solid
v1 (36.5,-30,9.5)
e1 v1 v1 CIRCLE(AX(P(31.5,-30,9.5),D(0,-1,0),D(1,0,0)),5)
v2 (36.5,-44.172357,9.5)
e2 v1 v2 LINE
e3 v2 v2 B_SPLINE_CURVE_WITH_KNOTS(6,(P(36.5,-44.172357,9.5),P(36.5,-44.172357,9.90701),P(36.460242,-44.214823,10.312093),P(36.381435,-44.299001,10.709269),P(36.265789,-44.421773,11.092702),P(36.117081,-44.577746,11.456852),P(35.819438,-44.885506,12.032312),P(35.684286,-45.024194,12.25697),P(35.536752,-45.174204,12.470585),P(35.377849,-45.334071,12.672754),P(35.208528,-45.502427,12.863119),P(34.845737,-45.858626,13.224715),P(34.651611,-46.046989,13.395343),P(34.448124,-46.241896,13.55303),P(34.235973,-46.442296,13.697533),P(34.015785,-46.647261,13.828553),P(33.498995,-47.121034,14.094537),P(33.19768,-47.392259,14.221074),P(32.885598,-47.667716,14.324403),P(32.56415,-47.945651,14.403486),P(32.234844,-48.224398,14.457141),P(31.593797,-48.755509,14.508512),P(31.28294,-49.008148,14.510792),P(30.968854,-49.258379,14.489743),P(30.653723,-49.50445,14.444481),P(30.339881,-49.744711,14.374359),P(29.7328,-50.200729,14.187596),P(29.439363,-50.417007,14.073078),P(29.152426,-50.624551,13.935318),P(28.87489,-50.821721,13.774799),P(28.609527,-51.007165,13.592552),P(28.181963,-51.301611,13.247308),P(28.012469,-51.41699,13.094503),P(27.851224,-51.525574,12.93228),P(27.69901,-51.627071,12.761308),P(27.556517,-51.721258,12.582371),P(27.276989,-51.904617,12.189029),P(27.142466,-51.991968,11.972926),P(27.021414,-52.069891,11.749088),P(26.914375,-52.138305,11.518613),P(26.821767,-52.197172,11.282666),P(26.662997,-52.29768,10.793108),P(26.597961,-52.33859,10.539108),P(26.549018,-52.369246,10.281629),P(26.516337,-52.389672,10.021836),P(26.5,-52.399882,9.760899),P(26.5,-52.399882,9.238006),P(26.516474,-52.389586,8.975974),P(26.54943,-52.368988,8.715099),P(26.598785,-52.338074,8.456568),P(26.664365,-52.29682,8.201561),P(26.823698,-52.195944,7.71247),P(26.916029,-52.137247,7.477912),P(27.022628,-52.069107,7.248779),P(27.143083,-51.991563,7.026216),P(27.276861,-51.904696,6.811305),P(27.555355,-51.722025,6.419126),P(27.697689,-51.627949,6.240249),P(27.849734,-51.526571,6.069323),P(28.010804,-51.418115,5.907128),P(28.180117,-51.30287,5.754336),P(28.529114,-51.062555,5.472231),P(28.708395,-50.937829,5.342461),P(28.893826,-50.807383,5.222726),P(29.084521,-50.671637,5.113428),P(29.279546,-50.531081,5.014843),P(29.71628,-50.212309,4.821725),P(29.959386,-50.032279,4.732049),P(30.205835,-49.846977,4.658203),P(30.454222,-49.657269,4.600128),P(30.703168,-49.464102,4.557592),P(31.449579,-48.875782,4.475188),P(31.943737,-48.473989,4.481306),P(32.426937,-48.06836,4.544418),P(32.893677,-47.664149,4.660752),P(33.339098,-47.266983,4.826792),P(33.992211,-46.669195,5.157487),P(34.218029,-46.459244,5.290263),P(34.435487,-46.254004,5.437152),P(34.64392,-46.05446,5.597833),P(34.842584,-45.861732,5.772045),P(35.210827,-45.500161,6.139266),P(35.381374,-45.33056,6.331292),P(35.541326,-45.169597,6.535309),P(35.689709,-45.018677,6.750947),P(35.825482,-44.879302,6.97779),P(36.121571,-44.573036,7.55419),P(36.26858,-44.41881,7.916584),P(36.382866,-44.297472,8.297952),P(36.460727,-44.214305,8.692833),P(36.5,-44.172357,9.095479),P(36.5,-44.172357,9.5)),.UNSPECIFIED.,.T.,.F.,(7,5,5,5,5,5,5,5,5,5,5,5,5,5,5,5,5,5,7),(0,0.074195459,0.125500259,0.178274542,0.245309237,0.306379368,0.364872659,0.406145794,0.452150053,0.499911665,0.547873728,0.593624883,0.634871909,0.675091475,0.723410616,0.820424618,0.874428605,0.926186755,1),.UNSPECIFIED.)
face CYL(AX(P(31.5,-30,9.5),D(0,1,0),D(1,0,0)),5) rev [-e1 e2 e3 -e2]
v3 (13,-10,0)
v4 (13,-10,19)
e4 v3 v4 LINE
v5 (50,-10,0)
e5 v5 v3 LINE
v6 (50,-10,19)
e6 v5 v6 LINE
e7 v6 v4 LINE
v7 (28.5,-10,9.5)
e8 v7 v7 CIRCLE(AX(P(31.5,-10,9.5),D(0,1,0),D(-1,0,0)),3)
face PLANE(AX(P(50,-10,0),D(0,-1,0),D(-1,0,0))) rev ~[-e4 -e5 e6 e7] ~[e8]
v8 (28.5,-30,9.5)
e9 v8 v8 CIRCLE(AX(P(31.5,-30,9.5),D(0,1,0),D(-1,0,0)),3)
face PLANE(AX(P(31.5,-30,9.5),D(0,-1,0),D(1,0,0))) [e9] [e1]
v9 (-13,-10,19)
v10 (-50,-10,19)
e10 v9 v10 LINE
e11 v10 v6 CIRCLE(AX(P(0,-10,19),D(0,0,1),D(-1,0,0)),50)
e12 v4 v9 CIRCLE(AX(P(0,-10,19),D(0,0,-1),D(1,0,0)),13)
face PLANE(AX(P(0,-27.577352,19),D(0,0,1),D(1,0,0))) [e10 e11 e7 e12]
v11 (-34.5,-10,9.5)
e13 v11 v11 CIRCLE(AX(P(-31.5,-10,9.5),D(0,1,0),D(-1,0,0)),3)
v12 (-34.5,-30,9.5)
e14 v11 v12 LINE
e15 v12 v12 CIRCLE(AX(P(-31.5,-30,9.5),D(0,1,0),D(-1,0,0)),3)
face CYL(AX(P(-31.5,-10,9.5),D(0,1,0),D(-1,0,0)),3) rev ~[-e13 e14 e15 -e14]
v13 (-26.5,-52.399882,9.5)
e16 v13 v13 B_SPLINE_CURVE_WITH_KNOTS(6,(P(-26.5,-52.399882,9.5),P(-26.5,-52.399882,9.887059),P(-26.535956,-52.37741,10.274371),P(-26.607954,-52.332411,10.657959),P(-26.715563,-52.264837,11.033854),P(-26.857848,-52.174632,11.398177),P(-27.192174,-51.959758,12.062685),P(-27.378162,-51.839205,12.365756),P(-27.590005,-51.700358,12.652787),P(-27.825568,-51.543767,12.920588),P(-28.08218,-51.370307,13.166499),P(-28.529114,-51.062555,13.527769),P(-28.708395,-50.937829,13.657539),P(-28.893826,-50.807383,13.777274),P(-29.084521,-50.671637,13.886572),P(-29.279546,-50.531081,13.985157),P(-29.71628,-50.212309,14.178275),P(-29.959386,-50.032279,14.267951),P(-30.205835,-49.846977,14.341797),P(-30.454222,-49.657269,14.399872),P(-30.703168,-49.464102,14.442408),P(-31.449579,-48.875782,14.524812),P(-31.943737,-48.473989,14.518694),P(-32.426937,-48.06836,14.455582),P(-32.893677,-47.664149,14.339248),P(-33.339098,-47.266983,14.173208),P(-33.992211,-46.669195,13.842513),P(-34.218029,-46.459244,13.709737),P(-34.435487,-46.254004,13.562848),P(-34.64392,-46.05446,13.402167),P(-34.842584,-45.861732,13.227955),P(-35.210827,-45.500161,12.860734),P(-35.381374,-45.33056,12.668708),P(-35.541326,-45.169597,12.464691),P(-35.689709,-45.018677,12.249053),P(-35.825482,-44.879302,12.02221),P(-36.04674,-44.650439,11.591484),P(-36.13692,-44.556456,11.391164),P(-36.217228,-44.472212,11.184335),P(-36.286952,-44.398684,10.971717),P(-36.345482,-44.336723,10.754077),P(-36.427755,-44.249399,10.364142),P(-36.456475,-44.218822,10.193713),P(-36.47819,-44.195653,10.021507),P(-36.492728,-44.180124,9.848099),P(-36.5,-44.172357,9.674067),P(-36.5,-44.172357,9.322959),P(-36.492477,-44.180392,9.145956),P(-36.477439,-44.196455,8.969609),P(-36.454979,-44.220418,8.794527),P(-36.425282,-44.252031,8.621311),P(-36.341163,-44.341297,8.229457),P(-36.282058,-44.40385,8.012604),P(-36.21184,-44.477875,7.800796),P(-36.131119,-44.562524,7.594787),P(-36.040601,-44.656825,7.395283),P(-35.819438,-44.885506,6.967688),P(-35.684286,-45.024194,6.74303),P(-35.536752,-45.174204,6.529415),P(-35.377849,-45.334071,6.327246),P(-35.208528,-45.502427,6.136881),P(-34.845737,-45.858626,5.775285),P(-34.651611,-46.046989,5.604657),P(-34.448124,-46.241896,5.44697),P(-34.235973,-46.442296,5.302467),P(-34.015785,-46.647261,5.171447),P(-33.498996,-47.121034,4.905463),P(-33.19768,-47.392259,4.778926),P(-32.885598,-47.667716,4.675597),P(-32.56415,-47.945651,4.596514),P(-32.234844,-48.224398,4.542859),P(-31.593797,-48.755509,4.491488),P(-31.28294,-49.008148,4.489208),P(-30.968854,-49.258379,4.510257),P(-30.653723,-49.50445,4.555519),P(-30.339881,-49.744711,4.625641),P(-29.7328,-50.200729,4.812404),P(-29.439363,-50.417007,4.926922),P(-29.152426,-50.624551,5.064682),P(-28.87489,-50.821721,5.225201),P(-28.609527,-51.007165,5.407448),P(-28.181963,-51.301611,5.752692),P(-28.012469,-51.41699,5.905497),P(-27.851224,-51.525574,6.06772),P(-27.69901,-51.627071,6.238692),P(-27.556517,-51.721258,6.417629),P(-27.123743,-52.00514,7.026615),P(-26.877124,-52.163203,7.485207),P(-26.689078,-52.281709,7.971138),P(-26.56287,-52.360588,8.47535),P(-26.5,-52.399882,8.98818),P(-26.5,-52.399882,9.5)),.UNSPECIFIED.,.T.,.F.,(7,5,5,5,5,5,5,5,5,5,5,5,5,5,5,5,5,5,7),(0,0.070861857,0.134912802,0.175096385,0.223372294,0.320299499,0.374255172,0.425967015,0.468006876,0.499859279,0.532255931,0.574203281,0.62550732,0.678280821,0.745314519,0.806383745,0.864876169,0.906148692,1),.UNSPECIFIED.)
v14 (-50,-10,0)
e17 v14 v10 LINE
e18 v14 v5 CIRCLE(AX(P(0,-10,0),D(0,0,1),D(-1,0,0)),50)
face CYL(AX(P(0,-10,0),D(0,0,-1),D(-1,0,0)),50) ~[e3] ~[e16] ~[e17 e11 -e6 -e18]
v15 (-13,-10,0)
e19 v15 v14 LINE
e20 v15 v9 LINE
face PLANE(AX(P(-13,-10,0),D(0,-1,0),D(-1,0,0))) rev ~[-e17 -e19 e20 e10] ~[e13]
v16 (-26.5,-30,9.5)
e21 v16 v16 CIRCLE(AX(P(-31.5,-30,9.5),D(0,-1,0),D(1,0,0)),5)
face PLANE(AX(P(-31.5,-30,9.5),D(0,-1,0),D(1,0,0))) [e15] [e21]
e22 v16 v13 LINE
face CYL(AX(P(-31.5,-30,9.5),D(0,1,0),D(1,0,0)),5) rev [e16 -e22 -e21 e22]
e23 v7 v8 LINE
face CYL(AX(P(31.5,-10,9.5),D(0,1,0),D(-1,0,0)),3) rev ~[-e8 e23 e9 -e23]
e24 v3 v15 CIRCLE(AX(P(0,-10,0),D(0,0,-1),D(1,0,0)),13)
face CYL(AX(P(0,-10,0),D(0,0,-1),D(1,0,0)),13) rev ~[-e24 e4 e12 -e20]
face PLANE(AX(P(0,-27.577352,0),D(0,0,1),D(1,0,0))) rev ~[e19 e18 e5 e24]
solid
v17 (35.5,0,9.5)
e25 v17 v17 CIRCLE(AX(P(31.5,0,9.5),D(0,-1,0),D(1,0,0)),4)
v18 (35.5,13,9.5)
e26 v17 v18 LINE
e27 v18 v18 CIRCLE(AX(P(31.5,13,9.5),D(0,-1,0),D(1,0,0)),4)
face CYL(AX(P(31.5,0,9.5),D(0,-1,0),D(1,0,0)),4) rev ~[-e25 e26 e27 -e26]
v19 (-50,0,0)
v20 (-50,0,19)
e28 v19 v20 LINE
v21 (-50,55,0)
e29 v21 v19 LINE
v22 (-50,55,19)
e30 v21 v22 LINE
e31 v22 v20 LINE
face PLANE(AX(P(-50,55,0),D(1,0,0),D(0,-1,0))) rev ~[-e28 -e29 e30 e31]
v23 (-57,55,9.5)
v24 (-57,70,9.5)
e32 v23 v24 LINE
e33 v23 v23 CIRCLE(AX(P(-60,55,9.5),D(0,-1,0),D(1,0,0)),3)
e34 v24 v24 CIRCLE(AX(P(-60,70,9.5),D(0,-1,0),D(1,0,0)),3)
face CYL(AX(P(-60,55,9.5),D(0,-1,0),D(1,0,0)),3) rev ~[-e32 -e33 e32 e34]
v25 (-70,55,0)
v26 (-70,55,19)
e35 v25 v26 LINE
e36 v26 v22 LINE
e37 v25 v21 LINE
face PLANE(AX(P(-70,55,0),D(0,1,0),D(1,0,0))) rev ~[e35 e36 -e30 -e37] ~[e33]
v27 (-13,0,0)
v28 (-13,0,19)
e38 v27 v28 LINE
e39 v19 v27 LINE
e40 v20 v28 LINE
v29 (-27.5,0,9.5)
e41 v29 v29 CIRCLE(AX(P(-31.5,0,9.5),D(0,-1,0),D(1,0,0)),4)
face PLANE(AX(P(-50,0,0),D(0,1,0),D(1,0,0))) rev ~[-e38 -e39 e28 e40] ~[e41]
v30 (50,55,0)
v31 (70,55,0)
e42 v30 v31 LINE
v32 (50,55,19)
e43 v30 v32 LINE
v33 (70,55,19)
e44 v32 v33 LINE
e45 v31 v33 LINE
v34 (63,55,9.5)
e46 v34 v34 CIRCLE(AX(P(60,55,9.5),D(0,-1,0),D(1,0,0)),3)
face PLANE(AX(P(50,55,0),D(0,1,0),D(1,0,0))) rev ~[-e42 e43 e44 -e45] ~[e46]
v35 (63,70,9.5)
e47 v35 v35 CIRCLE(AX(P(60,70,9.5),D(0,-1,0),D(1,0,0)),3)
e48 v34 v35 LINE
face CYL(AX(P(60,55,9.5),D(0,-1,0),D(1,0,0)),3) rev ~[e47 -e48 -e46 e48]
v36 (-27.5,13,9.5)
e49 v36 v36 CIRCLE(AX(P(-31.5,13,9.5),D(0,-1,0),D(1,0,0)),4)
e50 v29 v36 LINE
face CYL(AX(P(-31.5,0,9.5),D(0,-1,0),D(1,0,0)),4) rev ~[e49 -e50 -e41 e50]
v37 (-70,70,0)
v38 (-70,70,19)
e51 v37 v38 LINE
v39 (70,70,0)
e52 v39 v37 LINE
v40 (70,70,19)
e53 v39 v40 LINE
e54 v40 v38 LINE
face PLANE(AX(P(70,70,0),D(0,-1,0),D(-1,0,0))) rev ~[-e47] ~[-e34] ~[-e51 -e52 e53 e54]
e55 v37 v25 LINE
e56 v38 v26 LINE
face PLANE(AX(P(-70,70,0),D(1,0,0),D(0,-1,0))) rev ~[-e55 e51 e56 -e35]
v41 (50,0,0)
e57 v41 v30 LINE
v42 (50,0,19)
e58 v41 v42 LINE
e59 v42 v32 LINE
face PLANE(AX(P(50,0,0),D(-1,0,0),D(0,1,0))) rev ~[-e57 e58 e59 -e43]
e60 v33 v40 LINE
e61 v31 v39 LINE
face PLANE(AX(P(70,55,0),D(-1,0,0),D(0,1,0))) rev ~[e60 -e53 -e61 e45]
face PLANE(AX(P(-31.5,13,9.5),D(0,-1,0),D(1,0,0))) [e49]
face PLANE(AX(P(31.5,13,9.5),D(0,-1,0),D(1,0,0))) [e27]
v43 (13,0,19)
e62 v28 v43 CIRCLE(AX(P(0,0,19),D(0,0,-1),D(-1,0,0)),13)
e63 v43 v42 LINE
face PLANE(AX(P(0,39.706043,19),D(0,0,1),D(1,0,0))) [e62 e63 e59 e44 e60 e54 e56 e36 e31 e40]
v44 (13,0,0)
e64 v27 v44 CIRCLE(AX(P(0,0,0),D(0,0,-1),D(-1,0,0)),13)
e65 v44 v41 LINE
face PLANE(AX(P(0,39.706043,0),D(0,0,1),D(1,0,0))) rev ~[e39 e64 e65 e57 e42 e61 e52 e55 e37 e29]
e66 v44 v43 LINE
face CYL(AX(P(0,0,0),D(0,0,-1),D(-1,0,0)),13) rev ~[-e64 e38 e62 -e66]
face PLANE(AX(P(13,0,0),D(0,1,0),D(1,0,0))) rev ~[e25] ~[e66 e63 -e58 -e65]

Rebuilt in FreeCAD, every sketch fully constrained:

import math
import FreeCAD as App
import Part
import Sketcher

V = App.Vector
Q = App.Units.Quantity

doc = App.newDocument("Part")
body = doc.addObject("PartDesign::Body", "Body")
body.AllowCompound = True

# Sketch on XY plane
sketch1 = body.newObject("Sketcher::SketchObject", "Sketch")
sketch1.AttachmentSupport = (doc.getObject("XY_Plane"), [""])
sketch1.MapMode = "FlatFace"
sketch1.addGeometry([
    Part.ArcOfCircle(Part.Circle(V(0, 0, 0), V(0, 0, 1), 13), math.radians(0), math.radians(180)),  # 0
    Part.LineSegment(V(13, 0, 0), V(50, 0, 0)),  # 1
    Part.LineSegment(V(50, 0, 0), V(50, 55, 0)),  # 2
    Part.LineSegment(V(50, 55, 0), V(70, 55, 0)),  # 3
    Part.LineSegment(V(70, 55, 0), V(70, 70, 0)),  # 4
    Part.LineSegment(V(70, 70, 0), V(-70, 70, 0)),  # 5
    Part.LineSegment(V(-70, 70, 0), V(-70, 55, 0)),  # 6
    Part.LineSegment(V(-70, 55, 0), V(-50, 55, 0)),  # 7
    Part.LineSegment(V(-50, 55, 0), V(-50, 0, 0)),  # 8
    Part.LineSegment(V(-50, 0, 0), V(-13, 0, 0)),  # 9
    Part.LineSegment(V(-13, -10, 0), V(-50, -10, 0)),  # 10
    Part.ArcOfCircle(Part.Circle(V(0, -10, 0), V(0, 0, 1), 50), math.radians(180), math.radians(360)),  # 11
    Part.LineSegment(V(50, -10, 0), V(13, -10, 0)),  # 12
    Part.ArcOfCircle(Part.Circle(V(0, -10, 0), V(0, 0, 1), 13), math.radians(180), math.radians(360)),  # 13
], False)
sketch1.addConstraint([
    Sketcher.Constraint("Coincident", 0, 1, 1, 1),
    Sketcher.Constraint("Coincident", 1, 2, 2, 1),
    Sketcher.Constraint("Coincident", 2, 2, 3, 1),
    Sketcher.Constraint("Coincident", 3, 2, 4, 1),
    Sketcher.Constraint("Coincident", 4, 2, 5, 1),
    Sketcher.Constraint("Coincident", 5, 2, 6, 1),
    Sketcher.Constraint("Coincident", 6, 2, 7, 1),
    Sketcher.Constraint("Coincident", 7, 2, 8, 1),
    Sketcher.Constraint("Coincident", 8, 2, 9, 1),
    Sketcher.Constraint("Coincident", 9, 2, 0, 2),
    Sketcher.Constraint("Coincident", 10, 2, 11, 1),
    Sketcher.Constraint("Coincident", 11, 2, 12, 1),
    Sketcher.Constraint("Coincident", 12, 2, 13, 2),
    Sketcher.Constraint("Coincident", 13, 1, 10, 1),
    Sketcher.Constraint("Horizontal", 1),
    Sketcher.Constraint("Vertical", 2),
    Sketcher.Constraint("Horizontal", 3),
    Sketcher.Constraint("Vertical", 4),
    Sketcher.Constraint("Horizontal", 5),
    Sketcher.Constraint("Vertical", 6),
    Sketcher.Constraint("Horizontal", 7),
    Sketcher.Constraint("Vertical", 8),
    Sketcher.Constraint("Horizontal", 9),
    Sketcher.Constraint("Horizontal", 10),
    Sketcher.Constraint("Horizontal", 12),
    Sketcher.Constraint("Coincident", 0, 3, -1, 1),
    Sketcher.Constraint("Coincident", 13, 3, 11, 3),
    Sketcher.Constraint("Equal", 0, 13),
    Sketcher.Constraint("Symmetric", 1, 2, 8, 2, -1, 1),
    Sketcher.Constraint("Symmetric", 3, 2, 6, 2, -2),
    Sketcher.Constraint("Symmetric", 10, 2, 11, 2, -2),
    Sketcher.Constraint("PointOnObject", 0, 1, -1),
    Sketcher.Constraint("Horizontal", 13, 3, 10, 2),
    Sketcher.Constraint("Vertical", 8, 2, 10, 2),
    Sketcher.Constraint("Radius", 0, Q("13 mm")),
    Sketcher.Constraint("Radius", 11, Q("50 mm")),
    Sketcher.Constraint("DistanceX", 3, 1, 3, 2, Q("20 mm")),
    Sketcher.Constraint("DistanceY", 2, 1, 2, 2, Q("55 mm")),
    Sketcher.Constraint("DistanceY", 4, 1, 4, 2, Q("15 mm")),
    Sketcher.Constraint("DistanceY", 11, 3, -1, 1, Q("10 mm")),
])
pad1 = body.newObject("PartDesign::Pad", "Pad")
pad1.Profile = sketch1
pad1.Length = 19

# Sketch on XZ plane
sketch2 = body.newObject("Sketcher::SketchObject", "Sketch001")
sketch2.AttachmentSupport = (doc.getObject("XZ_Plane"), [""])
sketch2.MapMode = "FlatFace"
sketch2.addGeometry([
    Part.Circle(V(-31.5, 9.5, 0), V(0, 0, 1), 4),
    Part.Circle(V(31.5, 9.5, 0), V(0, 0, 1), 4),
], False)
sketch2.addConstraint([
    Sketcher.Constraint("Equal", 0, 1),
    Sketcher.Constraint("Symmetric", 0, 3, 1, 3, -2),
    Sketcher.Constraint("Diameter", 0, Q("8 mm")),
    Sketcher.Constraint("DistanceX", 0, 3, 1, 3, Q("63 mm")),
    Sketcher.Constraint("DistanceY", -1, 1, 0, 3, Q("9.5 mm")),
])
pocket1 = body.newObject("PartDesign::Pocket", "Pocket")
pocket1.Profile = sketch2
pocket1.Length = 13

# Sketch on XZ plane
sketch3 = body.newObject("Sketcher::SketchObject", "Sketch002")
sketch3.AttachmentSupport = (doc.getObject("XZ_Plane"), [""])
sketch3.MapMode = "FlatFace"
sketch3.AttachmentOffset = App.Placement(V(0, 0, -55), App.Rotation())
sketch3.addGeometry([
    Part.Circle(V(-60, 9.5, 0), V(0, 0, 1), 3),
    Part.Circle(V(60, 9.5, 0), V(0, 0, 1), 3),
], False)
sketch3.addConstraint([
    Sketcher.Constraint("Equal", 0, 1),
    Sketcher.Constraint("Symmetric", 0, 3, 1, 3, -2),
    Sketcher.Constraint("Diameter", 0, Q("6 mm")),
    Sketcher.Constraint("DistanceX", 0, 3, -1, 1, Q("60 mm")),
    Sketcher.Constraint("DistanceY", -1, 1, 0, 3, Q("9.5 mm")),
])
pocket2 = body.newObject("PartDesign::Pocket", "Pocket001")
pocket2.Profile = sketch3
pocket2.Length = 25

# Sketch on XZ plane
sketch4 = body.newObject("Sketcher::SketchObject", "Sketch003")
sketch4.AttachmentSupport = (doc.getObject("XZ_Plane"), [""])
sketch4.MapMode = "FlatFace"
sketch4.AttachmentOffset = App.Placement(V(0, 0, 10), App.Rotation())
sketch4.addGeometry([
    Part.Circle(V(31.5, 9.5, 0), V(0, 0, 1), 3),
    Part.Circle(V(-31.5, 9.5, 0), V(0, 0, 1), 3),
], False)
sketch4.addConstraint([
    Sketcher.Constraint("Equal", 0, 1),
    Sketcher.Constraint("Symmetric", 0, 3, 1, 3, -2),
    Sketcher.Constraint("Diameter", 0, Q("6 mm")),
    Sketcher.Constraint("DistanceX", 1, 3, 0, 3, Q("63 mm")),
    Sketcher.Constraint("DistanceY", -1, 1, 0, 3, Q("9.5 mm")),
])
pocket3 = body.newObject("PartDesign::Pocket", "Pocket002")
pocket3.Profile = sketch4
pocket3.Length = 42
pocket3.Reversed = True

# Sketch on XZ plane
sketch5 = body.newObject("Sketcher::SketchObject", "Sketch004")
sketch5.AttachmentSupport = (doc.getObject("XZ_Plane"), [""])
sketch5.MapMode = "FlatFace"
sketch5.AttachmentOffset = App.Placement(V(0, 0, 30), App.Rotation())
sketch5.addGeometry([
    Part.Circle(V(-32, 10, 0), V(0, 0, 1), 5),
    Part.Circle(V(32, 10, 0), V(0, 0, 1), 5),
], False)
sketch5.addConstraint([
    Sketcher.Constraint("Equal", 0, 1),
    Sketcher.Constraint("Symmetric", 0, 3, 1, 3, -2),
    Sketcher.Constraint("Diameter", 0, Q("10 mm")),
    Sketcher.Constraint("DistanceX", 0, 3, 1, 3, Q("63 mm")),
    Sketcher.Constraint("DistanceY", -1, 1, 0, 3, Q("9.5 mm")),
])
pocket4 = body.newObject("PartDesign::Pocket", "Pocket003")
pocket4.Profile = sketch5
pocket4.Length = 25
pocket4.Reversed = True

doc.recompute()
